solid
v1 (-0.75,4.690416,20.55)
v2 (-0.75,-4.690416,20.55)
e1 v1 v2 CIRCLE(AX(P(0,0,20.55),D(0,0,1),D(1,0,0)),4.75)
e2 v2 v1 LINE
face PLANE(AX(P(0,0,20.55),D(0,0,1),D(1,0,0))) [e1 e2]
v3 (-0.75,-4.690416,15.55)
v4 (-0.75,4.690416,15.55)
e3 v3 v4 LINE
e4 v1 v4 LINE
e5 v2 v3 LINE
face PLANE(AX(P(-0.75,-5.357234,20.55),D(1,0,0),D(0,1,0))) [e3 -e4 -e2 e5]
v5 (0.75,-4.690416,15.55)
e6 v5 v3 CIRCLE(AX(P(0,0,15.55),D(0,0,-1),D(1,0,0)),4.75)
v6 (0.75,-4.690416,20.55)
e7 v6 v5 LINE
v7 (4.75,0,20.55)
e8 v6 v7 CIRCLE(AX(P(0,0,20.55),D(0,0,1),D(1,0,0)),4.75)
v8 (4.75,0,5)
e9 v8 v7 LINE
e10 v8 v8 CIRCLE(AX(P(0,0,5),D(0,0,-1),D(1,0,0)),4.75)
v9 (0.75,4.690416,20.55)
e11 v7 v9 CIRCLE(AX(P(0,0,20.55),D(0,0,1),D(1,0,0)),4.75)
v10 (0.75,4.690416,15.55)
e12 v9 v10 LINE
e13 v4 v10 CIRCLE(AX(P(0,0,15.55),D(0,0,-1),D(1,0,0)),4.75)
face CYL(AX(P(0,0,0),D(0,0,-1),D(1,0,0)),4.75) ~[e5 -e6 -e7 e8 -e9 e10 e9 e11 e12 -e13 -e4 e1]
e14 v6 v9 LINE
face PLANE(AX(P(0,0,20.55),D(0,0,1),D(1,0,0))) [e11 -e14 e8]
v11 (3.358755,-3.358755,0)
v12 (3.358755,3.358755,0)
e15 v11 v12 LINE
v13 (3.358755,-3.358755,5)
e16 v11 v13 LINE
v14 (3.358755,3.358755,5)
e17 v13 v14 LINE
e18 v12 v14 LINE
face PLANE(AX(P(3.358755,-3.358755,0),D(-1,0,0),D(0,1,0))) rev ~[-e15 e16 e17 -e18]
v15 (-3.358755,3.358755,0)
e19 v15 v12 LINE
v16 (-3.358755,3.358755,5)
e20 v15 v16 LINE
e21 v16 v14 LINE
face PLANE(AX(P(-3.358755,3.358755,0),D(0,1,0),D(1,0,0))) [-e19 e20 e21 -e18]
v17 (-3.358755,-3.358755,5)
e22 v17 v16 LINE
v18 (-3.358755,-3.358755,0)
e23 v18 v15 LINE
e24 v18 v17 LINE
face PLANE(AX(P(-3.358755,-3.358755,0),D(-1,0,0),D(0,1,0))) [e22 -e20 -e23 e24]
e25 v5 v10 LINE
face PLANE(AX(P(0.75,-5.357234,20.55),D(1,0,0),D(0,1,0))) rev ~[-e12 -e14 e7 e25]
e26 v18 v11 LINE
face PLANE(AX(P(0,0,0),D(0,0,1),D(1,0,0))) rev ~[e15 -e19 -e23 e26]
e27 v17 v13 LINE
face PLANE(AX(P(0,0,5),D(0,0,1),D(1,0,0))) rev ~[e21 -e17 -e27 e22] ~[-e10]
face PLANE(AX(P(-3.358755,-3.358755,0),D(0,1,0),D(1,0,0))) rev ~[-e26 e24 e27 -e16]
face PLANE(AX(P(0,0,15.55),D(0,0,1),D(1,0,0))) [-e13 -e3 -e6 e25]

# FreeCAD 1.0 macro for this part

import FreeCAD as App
import Part
import Sketcher

V = App.Vector

doc = App.newDocument("Part")
body = doc.addObject("PartDesign::Body", "Body")

# Sketch on XY plane
sketch1 = doc.addObject("Sketcher::SketchObject", "Sketch")
body.addObject(sketch1)
sketch1.AttachmentSupport = (doc.XY_Plane, [""])
sketch1.MapMode = "FlatFace"
sketch1.addGeometry(Part.Circle(V(0, 0, 0), V(0, 0, 1), 4.8), False)
sketch1.addConstraint([
    Sketcher.Constraint("Coincident", 0, 3, -1, 1),
    Sketcher.Constraint("Diameter", 0, 9.5),
])
pad1 = doc.addObject("PartDesign::Pad", "Pad")
body.addObject(pad1)
pad1.Profile = sketch1
pad1.Length = 20.55

# Sketch on XY plane
sketch2 = doc.addObject("Sketcher::SketchObject", "Sketch001")
body.addObject(sketch2)
sketch2.AttachmentSupport = (doc.XY_Plane, [""])
sketch2.MapMode = "FlatFace"
sketch2.addGeometry([
    Part.LineSegment(V(-5, 5, 0), V(-5, -5, 0)),
    Part.LineSegment(V(-5, -5, 0), V(5, -5, 0)),
    Part.LineSegment(V(5, -5, 0), V(5, 5, 0)),
    Part.LineSegment(V(5, 5, 0), V(-5, 5, 0)),
], False)
sketch2.addConstraint([
    Sketcher.Constraint("Coincident", 0, 2, 1, 1),
    Sketcher.Constraint("Coincident", 1, 2, 2, 1),
    Sketcher.Constraint("Coincident", 2, 2, 3, 1),
    Sketcher.Constraint("Coincident", 3, 2, 0, 1),
    Sketcher.Constraint("Vertical", 0),
    Sketcher.Constraint("Horizontal", 1),
    Sketcher.Constraint("Vertical", 2),
    Sketcher.Constraint("Horizontal", 3),
    Sketcher.Constraint("Symmetric", 0, 2, 2, 2, -1, 1),
    Sketcher.Constraint("Equal", 3, 0),
    Sketcher.Constraint("DistanceX", 1, 1, 1, 2, 9.6),
])
pocket1 = doc.addObject("PartDesign::Pocket", "Pocket")
body.addObject(pocket1)
pocket1.Profile = sketch2
pocket1.Length = 5
pocket1.Reversed = True

# Sketch on XY plane
sketch3 = doc.addObject("Sketcher::SketchObject", "Sketch002")
body.addObject(sketch3)
sketch3.AttachmentSupport = (doc.XY_Plane, [""])
sketch3.MapMode = "FlatFace"
sketch3.AttachmentOffset = App.Placement(V(0, 0, 20.55), App.Rotation())
sketch3.addGeometry([
    Part.LineSegment(V(-0.8, 5.4, 0), V(-0.8, -5.4, 0)),
    Part.LineSegment(V(-0.8, -5.4, 0), V(0.8, -5.4, 0)),
    Part.LineSegment(V(0.8, -5.4, 0), V(0.8, 5.4, 0)),
    Part.LineSegment(V(0.8, 5.4, 0), V(-0.8, 5.4, 0)),
], False)
sketch3.addConstraint([
    Sketcher.Constraint("Coincident", 0, 2, 1, 1),
    Sketcher.Constraint("Coincident", 1, 2, 2, 1),
    Sketcher.Constraint("Coincident", 2, 2, 3, 1),
    Sketcher.Constraint("Coincident", 3, 2, 0, 1),
    Sketcher.Constraint("Vertical", 0),
    Sketcher.Constraint("Horizontal", 1),
    Sketcher.Constraint("Vertical", 2),
    Sketcher.Constraint("Horizontal", 3),
    Sketcher.Constraint("Symmetric", 0, 2, 2, 2, -1, 1),
    Sketcher.Constraint("DistanceX", 1, 1, 1, 2, 1.5),
    Sketcher.Constraint("DistanceY", 0, 2, 0, 1, 10.714468),
])
pocket2 = doc.addObject("PartDesign::Pocket", "Pocket001")
body.addObject(pocket2)
pocket2.Profile = sketch3
pocket2.Length = 5

# Sketch on XY plane
sketch4 = doc.addObject("Sketcher::SketchObject", "Sketch003")
body.addObject(sketch4)
sketch4.AttachmentSupport = (doc.XY_Plane, [""])
sketch4.MapMode = "FlatFace"
sketch4.addGeometry([
    Part.LineSegment(V(-3, 3, 0), V(-3, -3, 0)),
    Part.LineSegment(V(-3, -3, 0), V(3, -3, 0)),
    Part.LineSegment(V(3, -3, 0), V(3, 3, 0)),
    Part.LineSegment(V(3, 3, 0), V(-3, 3, 0)),
], False)
sketch4.addConstraint([
    Sketcher.Constraint("Coincident", 0, 2, 1, 1),
    Sketcher.Constraint("Coincident", 1, 2, 2, 1),
    Sketcher.Constraint("Coincident", 2, 2, 3, 1),
    Sketcher.Constraint("Coincident", 3, 2, 0, 1),
    Sketcher.Constraint("Vertical", 0),
    Sketcher.Constraint("Horizontal", 1),
    Sketcher.Constraint("Vertical", 2),
    Sketcher.Constraint("Horizontal", 3),
    Sketcher.Constraint("Symmetric", 0, 2, 2, 2, -1, 1),
    Sketcher.Constraint("Equal", 3, 0),
    Sketcher.Constraint("DistanceX", 1, 1, 1, 2, 6.71751),
])
pad2 = doc.addObject("PartDesign::Pad", "Pad001")
body.addObject(pad2)
pad2.Profile = sketch4
pad2.Length = 5

doc.recompute()
